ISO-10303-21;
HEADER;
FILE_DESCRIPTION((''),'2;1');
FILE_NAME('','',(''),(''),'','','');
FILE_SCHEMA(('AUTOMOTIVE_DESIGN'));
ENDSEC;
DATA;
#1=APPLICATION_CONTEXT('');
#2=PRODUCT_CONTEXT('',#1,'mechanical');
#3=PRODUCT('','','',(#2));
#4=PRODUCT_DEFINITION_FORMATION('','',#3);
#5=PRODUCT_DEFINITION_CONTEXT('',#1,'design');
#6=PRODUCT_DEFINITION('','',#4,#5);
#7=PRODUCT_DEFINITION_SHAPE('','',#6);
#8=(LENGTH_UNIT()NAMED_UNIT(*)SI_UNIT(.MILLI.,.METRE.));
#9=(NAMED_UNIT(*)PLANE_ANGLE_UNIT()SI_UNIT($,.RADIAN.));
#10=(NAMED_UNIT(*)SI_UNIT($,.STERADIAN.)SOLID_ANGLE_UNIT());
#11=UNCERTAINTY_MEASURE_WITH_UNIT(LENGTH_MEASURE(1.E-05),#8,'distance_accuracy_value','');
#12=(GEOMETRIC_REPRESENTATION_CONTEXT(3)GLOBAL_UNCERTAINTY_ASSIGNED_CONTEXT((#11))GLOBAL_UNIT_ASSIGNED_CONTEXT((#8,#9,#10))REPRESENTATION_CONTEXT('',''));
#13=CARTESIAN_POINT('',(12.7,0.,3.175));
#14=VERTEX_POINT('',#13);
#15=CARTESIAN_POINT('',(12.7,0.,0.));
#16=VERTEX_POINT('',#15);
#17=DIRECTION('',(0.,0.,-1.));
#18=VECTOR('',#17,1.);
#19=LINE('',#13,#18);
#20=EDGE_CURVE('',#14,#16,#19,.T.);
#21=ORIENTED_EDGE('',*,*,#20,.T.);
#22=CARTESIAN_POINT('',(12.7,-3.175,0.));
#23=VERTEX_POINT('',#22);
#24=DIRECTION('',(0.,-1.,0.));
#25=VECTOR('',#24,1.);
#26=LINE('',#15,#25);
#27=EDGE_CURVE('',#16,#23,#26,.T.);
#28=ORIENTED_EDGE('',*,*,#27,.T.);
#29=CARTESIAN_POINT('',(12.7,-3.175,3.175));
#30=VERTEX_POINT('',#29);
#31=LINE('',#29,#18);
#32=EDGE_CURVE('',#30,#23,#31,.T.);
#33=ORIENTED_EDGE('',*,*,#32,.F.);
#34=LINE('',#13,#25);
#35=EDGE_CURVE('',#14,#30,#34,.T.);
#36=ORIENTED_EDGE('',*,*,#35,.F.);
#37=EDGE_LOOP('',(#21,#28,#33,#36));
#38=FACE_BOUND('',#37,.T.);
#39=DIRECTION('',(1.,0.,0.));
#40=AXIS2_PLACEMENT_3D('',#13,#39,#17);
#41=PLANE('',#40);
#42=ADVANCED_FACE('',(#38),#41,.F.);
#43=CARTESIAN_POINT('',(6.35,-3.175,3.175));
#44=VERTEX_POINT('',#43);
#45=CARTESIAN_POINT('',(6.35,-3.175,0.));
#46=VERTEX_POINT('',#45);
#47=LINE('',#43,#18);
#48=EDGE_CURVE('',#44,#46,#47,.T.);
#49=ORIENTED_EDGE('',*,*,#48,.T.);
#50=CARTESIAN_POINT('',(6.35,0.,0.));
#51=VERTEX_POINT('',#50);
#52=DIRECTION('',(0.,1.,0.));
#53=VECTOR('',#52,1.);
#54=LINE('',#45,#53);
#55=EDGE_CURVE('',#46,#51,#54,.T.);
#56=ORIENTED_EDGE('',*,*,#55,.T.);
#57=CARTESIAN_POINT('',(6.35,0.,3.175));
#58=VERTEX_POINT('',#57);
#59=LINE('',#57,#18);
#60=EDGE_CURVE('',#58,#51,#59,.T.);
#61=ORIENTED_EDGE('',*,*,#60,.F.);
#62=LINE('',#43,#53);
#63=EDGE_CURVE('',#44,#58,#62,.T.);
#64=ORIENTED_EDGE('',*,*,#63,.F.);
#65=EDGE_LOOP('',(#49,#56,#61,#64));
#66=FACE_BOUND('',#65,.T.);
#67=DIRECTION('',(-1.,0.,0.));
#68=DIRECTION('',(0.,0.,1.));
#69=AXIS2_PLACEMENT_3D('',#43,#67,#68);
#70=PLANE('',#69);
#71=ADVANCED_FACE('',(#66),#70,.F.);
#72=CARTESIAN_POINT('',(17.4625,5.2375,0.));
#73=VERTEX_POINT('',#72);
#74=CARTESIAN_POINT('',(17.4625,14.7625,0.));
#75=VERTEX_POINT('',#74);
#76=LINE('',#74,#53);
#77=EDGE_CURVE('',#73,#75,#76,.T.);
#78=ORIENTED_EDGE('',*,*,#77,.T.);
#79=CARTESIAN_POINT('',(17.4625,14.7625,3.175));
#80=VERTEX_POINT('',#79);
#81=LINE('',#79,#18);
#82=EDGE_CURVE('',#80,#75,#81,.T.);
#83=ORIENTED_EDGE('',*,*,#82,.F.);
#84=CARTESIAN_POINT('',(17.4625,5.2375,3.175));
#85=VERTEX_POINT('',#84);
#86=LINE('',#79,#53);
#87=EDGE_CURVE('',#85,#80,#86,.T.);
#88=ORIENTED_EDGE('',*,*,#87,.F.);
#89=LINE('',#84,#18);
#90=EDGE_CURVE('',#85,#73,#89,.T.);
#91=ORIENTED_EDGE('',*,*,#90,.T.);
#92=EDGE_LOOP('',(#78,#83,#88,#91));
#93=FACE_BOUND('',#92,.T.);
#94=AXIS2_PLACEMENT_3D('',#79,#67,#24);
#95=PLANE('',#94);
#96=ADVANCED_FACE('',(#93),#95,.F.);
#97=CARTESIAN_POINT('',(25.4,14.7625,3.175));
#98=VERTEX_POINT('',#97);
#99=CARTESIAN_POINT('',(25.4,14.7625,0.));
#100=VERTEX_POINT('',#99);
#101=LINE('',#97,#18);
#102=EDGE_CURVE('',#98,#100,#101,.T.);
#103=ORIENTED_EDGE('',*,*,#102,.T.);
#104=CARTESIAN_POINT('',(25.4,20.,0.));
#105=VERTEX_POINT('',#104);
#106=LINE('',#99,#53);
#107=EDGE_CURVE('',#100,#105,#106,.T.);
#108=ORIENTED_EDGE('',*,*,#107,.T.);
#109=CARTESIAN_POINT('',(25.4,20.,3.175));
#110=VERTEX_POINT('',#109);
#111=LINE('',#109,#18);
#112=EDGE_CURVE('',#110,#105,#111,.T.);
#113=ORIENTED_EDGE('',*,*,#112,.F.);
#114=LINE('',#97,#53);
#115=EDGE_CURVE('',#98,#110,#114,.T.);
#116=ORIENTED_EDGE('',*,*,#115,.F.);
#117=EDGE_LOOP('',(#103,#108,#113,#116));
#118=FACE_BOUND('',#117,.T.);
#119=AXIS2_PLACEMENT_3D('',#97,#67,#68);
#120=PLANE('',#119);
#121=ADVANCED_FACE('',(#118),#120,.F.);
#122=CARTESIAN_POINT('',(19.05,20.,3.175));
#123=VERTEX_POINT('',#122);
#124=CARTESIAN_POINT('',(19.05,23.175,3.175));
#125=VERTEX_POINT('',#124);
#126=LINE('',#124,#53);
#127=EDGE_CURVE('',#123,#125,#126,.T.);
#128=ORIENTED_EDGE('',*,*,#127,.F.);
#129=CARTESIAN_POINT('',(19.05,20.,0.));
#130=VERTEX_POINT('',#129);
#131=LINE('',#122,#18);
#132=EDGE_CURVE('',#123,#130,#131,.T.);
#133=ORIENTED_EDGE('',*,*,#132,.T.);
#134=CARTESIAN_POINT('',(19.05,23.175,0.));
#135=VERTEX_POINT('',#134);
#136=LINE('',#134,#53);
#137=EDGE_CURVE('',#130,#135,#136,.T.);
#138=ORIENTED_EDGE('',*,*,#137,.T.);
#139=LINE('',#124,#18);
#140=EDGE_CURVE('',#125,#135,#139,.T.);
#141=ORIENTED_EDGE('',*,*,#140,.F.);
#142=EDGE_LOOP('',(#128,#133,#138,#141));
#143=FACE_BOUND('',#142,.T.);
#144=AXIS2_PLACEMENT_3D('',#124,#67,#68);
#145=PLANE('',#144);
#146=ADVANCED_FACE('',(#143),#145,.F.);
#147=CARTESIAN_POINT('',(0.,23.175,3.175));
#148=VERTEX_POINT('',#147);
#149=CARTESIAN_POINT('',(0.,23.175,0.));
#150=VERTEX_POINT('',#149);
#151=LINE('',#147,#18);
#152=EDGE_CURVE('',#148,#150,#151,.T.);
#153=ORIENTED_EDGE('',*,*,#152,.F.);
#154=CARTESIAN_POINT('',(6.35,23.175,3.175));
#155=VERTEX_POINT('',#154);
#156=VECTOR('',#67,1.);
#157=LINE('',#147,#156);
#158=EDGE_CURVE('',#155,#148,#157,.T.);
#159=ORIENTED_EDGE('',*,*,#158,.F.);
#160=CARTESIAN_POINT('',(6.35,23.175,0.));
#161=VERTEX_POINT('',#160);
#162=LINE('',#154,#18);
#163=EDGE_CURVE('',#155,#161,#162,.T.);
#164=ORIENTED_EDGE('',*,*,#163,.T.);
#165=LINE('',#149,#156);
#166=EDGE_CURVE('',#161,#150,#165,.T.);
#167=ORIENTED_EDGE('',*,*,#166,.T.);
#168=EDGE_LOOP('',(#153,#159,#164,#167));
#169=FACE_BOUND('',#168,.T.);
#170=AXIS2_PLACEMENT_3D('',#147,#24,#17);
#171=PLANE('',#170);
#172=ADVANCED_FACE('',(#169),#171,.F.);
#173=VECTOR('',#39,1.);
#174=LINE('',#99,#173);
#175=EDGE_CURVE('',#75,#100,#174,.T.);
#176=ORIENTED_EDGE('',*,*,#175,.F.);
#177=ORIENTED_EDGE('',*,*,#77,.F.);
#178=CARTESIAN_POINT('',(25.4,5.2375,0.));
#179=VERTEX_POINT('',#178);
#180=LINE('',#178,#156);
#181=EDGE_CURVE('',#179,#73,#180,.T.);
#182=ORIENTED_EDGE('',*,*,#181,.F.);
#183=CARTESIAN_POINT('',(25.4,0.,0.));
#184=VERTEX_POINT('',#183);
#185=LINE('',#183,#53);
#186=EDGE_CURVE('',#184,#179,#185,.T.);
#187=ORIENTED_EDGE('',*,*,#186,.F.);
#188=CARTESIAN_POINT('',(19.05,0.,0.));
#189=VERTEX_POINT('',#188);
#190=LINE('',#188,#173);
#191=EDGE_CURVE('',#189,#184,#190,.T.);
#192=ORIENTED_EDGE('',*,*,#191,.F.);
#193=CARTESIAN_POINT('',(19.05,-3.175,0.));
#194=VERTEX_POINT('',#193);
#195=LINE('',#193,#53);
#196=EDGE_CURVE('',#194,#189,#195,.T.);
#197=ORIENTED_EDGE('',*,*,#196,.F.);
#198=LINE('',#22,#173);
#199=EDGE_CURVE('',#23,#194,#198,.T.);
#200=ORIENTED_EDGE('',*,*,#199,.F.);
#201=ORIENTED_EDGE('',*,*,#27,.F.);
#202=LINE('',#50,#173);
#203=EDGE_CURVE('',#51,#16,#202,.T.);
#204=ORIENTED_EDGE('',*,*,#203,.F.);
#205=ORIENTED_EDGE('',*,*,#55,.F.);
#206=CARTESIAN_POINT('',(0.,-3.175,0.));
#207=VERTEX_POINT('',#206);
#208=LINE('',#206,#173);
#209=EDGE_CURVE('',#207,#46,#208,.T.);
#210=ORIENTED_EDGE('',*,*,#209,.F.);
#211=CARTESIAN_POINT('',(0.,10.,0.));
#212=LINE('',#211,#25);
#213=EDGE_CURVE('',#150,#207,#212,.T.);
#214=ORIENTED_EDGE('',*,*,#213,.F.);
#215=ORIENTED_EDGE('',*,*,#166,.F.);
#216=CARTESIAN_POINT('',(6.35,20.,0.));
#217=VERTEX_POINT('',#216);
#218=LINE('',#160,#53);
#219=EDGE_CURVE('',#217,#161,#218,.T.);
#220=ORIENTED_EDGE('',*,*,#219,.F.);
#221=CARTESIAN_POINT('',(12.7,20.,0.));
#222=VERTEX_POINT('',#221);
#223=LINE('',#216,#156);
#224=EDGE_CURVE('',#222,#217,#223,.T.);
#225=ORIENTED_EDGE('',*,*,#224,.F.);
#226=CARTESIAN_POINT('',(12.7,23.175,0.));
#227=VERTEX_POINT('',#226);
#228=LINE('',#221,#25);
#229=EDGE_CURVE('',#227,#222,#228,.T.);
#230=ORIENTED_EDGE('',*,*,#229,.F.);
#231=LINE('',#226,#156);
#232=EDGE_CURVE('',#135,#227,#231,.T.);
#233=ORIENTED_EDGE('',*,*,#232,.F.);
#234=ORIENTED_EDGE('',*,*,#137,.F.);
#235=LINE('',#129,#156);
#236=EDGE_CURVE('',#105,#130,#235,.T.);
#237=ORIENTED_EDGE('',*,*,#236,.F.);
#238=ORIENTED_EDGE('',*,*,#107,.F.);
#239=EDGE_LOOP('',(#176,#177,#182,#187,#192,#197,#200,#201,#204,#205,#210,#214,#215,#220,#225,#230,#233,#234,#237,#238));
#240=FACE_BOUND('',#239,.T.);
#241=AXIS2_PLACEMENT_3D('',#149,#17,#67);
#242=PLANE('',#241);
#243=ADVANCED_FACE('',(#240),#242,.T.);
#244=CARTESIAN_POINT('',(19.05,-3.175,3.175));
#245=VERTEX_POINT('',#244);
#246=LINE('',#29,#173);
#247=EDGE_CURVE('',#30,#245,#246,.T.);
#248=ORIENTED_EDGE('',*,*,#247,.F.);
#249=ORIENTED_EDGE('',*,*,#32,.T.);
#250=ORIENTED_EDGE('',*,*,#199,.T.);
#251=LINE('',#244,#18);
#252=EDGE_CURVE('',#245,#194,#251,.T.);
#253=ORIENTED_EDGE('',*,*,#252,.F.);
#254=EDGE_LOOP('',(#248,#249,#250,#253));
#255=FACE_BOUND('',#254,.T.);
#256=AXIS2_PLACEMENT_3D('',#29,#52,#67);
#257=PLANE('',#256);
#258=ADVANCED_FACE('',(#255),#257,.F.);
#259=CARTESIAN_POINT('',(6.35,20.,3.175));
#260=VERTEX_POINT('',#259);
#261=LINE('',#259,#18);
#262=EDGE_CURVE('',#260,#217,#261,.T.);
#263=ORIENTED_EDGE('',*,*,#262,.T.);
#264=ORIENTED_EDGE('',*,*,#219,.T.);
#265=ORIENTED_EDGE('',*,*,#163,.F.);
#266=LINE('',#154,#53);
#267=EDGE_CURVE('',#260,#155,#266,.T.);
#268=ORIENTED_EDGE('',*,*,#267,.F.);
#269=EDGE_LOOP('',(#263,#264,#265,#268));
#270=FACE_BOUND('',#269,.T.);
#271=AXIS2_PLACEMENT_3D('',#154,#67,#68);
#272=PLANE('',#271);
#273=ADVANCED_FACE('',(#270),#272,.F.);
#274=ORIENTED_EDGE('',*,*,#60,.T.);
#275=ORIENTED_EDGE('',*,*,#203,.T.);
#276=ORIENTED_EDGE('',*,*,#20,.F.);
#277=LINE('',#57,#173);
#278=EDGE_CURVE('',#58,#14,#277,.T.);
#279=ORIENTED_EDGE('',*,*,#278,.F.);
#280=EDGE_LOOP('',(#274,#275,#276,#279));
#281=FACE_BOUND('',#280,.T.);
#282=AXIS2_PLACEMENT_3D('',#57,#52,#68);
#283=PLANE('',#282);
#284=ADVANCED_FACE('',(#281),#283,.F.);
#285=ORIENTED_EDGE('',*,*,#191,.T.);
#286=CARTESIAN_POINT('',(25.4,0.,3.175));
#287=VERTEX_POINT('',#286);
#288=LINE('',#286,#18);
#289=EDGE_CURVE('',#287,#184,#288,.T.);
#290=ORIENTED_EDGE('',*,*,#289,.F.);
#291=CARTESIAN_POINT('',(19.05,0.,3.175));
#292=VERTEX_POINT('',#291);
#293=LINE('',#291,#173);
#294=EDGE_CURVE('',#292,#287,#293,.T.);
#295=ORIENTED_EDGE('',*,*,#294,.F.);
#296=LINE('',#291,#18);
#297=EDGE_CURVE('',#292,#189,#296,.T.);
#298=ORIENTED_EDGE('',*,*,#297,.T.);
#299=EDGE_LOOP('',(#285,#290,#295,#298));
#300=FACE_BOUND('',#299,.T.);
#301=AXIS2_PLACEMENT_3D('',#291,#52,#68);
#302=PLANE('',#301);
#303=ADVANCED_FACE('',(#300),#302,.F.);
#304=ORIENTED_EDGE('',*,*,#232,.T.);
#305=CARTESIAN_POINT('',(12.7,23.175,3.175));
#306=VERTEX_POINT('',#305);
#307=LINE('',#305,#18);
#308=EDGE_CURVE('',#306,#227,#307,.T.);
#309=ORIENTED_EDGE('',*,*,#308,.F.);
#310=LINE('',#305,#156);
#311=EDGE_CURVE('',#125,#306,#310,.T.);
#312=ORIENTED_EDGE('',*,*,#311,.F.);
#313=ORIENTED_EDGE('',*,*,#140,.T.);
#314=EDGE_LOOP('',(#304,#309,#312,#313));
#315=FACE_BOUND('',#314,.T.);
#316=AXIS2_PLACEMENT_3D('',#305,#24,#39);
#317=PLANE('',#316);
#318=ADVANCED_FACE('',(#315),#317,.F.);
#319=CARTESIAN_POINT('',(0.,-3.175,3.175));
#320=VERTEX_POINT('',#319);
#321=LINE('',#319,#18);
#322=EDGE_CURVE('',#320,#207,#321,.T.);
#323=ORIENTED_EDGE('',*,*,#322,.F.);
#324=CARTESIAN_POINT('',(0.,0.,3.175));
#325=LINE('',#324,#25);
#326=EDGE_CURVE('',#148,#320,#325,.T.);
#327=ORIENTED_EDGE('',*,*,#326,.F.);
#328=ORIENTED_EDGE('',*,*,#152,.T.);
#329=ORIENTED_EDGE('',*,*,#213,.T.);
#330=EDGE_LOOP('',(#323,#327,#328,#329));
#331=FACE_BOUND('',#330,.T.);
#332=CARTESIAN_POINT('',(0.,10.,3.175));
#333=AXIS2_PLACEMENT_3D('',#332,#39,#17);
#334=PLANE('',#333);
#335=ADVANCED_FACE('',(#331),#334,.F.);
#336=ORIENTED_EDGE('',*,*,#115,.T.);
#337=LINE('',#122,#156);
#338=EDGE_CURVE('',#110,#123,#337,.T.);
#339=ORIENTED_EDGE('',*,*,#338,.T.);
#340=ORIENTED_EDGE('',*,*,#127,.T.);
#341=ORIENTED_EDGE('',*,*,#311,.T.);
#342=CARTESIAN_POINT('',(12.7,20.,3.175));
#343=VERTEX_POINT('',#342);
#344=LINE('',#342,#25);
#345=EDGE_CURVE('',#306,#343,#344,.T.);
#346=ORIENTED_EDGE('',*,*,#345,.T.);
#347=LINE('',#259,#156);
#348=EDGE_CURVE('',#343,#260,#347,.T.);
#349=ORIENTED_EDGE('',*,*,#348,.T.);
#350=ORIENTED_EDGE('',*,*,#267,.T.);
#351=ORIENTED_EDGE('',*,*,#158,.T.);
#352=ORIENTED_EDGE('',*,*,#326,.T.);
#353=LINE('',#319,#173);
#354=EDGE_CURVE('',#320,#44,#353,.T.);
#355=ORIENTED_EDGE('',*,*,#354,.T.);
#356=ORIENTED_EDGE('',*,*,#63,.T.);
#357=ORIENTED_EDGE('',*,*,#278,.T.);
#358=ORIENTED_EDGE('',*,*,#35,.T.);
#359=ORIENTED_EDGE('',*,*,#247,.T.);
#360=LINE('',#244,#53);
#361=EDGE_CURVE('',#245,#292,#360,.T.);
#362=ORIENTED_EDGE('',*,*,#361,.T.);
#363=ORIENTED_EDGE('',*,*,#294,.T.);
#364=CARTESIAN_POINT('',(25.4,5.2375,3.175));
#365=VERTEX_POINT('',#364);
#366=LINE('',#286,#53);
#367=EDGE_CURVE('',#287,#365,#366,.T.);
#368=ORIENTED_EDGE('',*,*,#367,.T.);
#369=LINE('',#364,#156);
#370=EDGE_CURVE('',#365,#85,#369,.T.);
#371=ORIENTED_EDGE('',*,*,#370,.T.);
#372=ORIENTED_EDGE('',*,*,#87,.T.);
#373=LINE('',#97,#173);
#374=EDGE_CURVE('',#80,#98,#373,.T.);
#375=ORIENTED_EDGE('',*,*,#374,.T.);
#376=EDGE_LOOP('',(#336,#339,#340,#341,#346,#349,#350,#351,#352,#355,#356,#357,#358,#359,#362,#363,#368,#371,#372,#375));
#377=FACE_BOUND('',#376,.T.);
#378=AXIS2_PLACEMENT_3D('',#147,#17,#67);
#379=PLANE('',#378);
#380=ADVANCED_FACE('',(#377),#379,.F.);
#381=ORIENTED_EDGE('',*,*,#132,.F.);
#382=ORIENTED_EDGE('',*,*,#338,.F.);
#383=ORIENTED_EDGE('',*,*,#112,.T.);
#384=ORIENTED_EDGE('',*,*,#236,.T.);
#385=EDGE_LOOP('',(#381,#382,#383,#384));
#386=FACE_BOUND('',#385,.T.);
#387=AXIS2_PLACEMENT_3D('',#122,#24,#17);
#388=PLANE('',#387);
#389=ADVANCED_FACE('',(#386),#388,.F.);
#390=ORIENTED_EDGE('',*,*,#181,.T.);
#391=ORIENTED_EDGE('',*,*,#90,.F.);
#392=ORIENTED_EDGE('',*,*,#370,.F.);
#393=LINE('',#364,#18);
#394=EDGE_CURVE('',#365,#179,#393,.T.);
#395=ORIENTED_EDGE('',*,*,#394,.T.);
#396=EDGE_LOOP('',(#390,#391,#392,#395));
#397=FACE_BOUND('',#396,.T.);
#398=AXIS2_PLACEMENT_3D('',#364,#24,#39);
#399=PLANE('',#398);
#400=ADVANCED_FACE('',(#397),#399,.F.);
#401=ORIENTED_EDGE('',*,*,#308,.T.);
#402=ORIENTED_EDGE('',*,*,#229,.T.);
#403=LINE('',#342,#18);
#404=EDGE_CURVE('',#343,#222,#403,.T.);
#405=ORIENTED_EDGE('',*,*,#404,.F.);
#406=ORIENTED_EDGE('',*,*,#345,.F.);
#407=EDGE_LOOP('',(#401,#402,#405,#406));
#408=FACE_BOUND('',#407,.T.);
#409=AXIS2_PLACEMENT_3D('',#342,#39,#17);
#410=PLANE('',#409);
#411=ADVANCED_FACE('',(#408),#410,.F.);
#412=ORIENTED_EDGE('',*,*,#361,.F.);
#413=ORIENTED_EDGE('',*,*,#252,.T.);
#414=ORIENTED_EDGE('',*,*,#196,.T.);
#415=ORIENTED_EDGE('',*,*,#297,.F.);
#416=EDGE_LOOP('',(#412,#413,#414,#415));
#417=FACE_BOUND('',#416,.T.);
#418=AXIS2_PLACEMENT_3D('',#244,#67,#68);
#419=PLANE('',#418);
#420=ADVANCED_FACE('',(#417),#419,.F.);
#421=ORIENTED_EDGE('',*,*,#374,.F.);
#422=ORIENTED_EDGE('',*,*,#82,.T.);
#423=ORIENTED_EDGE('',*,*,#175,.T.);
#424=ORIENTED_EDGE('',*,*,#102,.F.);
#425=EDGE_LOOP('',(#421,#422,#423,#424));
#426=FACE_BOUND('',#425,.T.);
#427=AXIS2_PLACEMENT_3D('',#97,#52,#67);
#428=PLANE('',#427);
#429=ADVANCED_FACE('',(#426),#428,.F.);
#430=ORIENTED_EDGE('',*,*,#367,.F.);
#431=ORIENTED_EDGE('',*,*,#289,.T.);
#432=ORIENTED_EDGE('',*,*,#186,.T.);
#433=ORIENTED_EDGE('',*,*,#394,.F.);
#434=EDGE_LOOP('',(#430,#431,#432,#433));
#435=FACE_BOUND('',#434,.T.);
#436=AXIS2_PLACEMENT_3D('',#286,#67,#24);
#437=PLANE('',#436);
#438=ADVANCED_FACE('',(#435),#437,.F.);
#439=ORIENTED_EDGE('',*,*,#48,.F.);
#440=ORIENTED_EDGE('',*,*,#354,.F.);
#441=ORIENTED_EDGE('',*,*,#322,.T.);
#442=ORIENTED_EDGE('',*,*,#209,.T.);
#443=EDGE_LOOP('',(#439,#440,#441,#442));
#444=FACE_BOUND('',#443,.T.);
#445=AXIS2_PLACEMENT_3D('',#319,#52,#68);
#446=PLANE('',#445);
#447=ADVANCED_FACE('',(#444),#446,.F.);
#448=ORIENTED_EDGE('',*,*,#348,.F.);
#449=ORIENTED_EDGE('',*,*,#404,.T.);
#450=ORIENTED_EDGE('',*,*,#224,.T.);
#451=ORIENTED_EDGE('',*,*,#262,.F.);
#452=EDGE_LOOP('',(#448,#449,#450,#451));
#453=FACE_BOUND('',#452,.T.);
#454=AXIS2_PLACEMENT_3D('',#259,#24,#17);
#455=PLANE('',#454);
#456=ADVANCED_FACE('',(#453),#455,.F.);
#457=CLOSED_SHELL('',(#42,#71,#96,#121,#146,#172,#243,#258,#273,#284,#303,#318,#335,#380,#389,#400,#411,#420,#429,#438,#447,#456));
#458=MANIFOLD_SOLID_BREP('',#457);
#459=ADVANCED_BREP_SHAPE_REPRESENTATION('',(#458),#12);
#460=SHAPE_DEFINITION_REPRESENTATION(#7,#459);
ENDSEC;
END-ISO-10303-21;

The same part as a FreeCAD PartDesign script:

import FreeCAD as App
import Part
import Sketcher
from FreeCAD import Vector
Q = App.Units.Quantity


def add_polygon(sketch, points):
    """Adds a closed chain of lines whose ends are joined by coincident constraints."""
    first, n = sketch.GeometryCount, len(points)
    for a, b in zip(points, points[1:] + points[:1]):
        sketch.addGeometry(Part.LineSegment(App.Vector(*a, 0), App.Vector(*b, 0)), False)
    for i in range(n):
        sketch.addConstraint(Sketcher.Constraint("Coincident", first + i, 2, first + (i + 1) % n, 1))

doc = App.newDocument("Part")
params = doc.addObject("Spreadsheet::Sheet", "Params")
for row, (alias, value) in enumerate([
    ("sketch1_width", "0.3125 in"),
    ("sketch1_height", "0.125 in"),
    ("sketch1_height2", "0.375 in"),
    ("pad1_length", "0.125 in"),
], start=1):
    params.set(f"A{row}", alias)
    params.set(f"B{row}", "=" + value)
    params.setAlias(f"B{row}", alias)

body = doc.addObject("PartDesign::Body", "Body")

sketch1 = doc.addObject("Sketcher::SketchObject", "Sketch")
body.addObject(sketch1)
sketch1.AttachmentSupport = (doc.XY_Plane, [""])
sketch1.MapMode = "FlatFace"
add_polygon(sketch1, [(0, -3.2), (6.3, -3.2), (6.3, 0), (12.7, 0), (12.7, -3.2), (19.1, -3.2), (19.1, 0), (25.4, 0), (25.4, 5.2), (17.5, 5.2), (17.5, 14.8), (25.4, 14.8), (25.4, 20), (19.1, 20), (19.1, 23.2), (12.7, 23.2), (12.7, 20), (6.3, 20), (6.3, 23.2), (0, 23.2)])
sketch1.addConstraint([
    Sketcher.Constraint("Horizontal", 0),
    Sketcher.Constraint("Vertical", 1),
    Sketcher.Constraint("Horizontal", 2),
    Sketcher.Constraint("Vertical", 3),
    Sketcher.Constraint("Horizontal", 4),
    Sketcher.Constraint("Vertical", 5),
    Sketcher.Constraint("Horizontal", 6),
    Sketcher.Constraint("Vertical", 7),
    Sketcher.Constraint("Horizontal", 8),
    Sketcher.Constraint("Vertical", 9),
    Sketcher.Constraint("Horizontal", 10),
    Sketcher.Constraint("Vertical", 11),
    Sketcher.Constraint("Horizontal", 12),
    Sketcher.Constraint("Vertical", 13),
    Sketcher.Constraint("Horizontal", 14),
    Sketcher.Constraint("Vertical", 15),
    Sketcher.Constraint("Horizontal", 16),
    Sketcher.Constraint("Vertical", 17),
    Sketcher.Constraint("Horizontal", 18),
    Sketcher.Constraint("Vertical", 19),
    Sketcher.Constraint("PointOnObject", 1, 2, -1),
    Sketcher.Constraint("PointOnObject", 5, 2, -1),
    Sketcher.Constraint("PointOnObject", 18, 2, -2),
    Sketcher.Constraint("Horizontal", 0, 2, 3, 2),
    Sketcher.Constraint("Horizontal", 12, 2, 15, 2),
    Sketcher.Constraint("Horizontal", 14, 2, 17, 2),
    Sketcher.Constraint("Vertical", 7, 2, 10, 2),
    Sketcher.Constraint("Vertical", 5, 2, 12, 2),
    Sketcher.Constraint("Vertical", 3, 2, 14, 2),
    Sketcher.Constraint("Vertical", 1, 2, 16, 2),
    Sketcher.Constraint("Equal", 0, 2),
    Sketcher.Constraint("Equal", 2, 4),
    Sketcher.Constraint("Equal", 4, 6),
    Sketcher.Constraint("Equal", 7, 11),
    Sketcher.Constraint("Equal", 5, 13),
    Sketcher.Constraint("DistanceX", -1, 1, 6, 2, Q("1 in")),
    Sketcher.Constraint("DistanceX", 8, 2, 8, 1, Q("0.3125 in")),
    Sketcher.Constraint("DistanceY", 1, 1, 1, 2, Q("0.125 in")),
    Sketcher.Constraint("DistanceY", 9, 1, 9, 2, Q("0.375 in")),
    Sketcher.Constraint("DistanceY", 7, 1, 7, 2, Q("5.2375 mm")),
])
sketch1.setExpression("Constraints[56]", "Params.sketch1_width")
sketch1.setExpression("Constraints[57]", "Params.sketch1_height")
sketch1.setExpression("Constraints[58]", "Params.sketch1_height2")
pad1 = doc.addObject("PartDesign::Pad", "Pad")
body.addObject(pad1)
pad1.Profile = sketch1
pad1.setExpression("Length", "Params.pad1_length")

doc.recompute()
